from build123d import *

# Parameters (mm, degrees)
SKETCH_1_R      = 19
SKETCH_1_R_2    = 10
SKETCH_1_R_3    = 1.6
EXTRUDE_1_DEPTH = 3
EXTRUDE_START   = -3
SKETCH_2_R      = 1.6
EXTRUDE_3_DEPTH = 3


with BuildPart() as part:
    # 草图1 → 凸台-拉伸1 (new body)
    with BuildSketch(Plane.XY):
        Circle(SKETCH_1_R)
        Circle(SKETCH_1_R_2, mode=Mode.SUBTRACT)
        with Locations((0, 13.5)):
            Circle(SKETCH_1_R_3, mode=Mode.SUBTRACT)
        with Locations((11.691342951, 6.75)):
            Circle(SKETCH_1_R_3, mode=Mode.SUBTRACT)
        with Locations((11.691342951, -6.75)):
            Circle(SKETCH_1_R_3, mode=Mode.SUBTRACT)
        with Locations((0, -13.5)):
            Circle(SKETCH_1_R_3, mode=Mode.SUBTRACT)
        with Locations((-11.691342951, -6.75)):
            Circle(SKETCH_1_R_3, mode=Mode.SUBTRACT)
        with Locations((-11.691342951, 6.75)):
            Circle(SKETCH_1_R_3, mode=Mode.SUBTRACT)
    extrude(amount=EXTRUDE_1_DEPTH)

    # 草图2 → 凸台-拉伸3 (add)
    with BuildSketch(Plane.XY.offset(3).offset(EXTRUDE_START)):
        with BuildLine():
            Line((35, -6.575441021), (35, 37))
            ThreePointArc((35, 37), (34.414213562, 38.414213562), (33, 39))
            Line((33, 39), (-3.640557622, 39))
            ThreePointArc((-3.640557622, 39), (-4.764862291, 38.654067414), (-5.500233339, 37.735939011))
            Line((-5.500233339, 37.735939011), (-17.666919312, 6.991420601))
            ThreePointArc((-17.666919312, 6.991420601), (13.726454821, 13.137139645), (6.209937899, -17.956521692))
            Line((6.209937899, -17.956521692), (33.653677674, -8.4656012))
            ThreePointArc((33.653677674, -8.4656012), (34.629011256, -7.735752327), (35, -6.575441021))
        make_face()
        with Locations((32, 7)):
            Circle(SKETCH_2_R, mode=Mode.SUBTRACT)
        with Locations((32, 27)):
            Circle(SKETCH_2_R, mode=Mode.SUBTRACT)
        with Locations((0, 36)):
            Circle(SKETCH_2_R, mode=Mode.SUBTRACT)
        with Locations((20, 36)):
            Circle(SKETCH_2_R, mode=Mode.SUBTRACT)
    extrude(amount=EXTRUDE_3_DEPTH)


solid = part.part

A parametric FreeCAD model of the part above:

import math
import FreeCAD as App
import Part
import Sketcher

V = App.Vector

doc = App.newDocument("Part")
body = doc.addObject("PartDesign::Body", "Body")

sketch1 = body.newObject("Sketcher::SketchObject", "Sketch")
sketch1.AttachmentSupport = (doc.getObject("XY_Plane"), [""])
sketch1.MapMode = "FlatFace"
sketch1.addGeometry([
    Part.Circle(V(0, 0, 0), V(0, 0, 1), 19),
    Part.Circle(V(-11.7, -6.8, 0), V(0, 0, 1), 1.6),
    Part.Circle(V(0, -13.5, 0), V(0, 0, 1), 1.6),
    Part.Circle(V(11.7, -6.8, 0), V(0, 0, 1), 1.6),
    Part.Circle(V(-11.7, 6.8, 0), V(0, 0, 1), 1.6),
    Part.Circle(V(0, 0, 0), V(0, 0, 1), 10),
    Part.Circle(V(11.7, 6.8, 0), V(0, 0, 1), 1.6),
    Part.Circle(V(0, 13.5, 0), V(0, 0, 1), 1.6),
], False)
sketch1.addConstraint([
    Sketcher.Constraint("Coincident", 0, 3, -1, 1),
    Sketcher.Constraint("Coincident", 5, 3, -1, 1),
    Sketcher.Constraint("Equal", 1, 2),
    Sketcher.Constraint("Equal", 2, 3),
    Sketcher.Constraint("Equal", 3, 4),
    Sketcher.Constraint("Equal", 4, 6),
    Sketcher.Constraint("Equal", 6, 7),
    Sketcher.Constraint("Symmetric", 3, 3, 4, 3, -1, 1),
    Sketcher.Constraint("Symmetric", 1, 3, 6, 3, -1, 1),
    Sketcher.Constraint("Symmetric", 2, 3, 7, 3, -1, 1),
    Sketcher.Constraint("Symmetric", 1, 3, 3, 3, -2),
    Sketcher.Constraint("PointOnObject", 2, 3, -2),
    Sketcher.Constraint("Diameter", 0, 38.0),
    Sketcher.Constraint("Diameter", 5, 20.0),
    Sketcher.Constraint("Diameter", 1, 3.2),
    Sketcher.Constraint("DistanceY", 2, 3, -1, 1, 13.5),
    Sketcher.Constraint("DistanceY", 1, 3, 4, 3, 13.5),
    Sketcher.Constraint("DistanceX", 1, 3, -1, 1, 11.691343),
])
pad1 = body.newObject("PartDesign::Pad", "Pad")
pad1.Profile = sketch1
pad1.Length = 3

sketch2 = body.newObject("Sketcher::SketchObject", "Sketch001")
sketch2.AttachmentSupport = (doc.getObject("XY_Plane"), [""])
sketch2.MapMode = "FlatFace"
sketch2.addGeometry([
    Part.LineSegment(V(35, -6.6, 0), V(35, 37, 0)),
    Part.ArcOfCircle(Part.Circle(V(33, 37, 0), V(0, 0, 1), 2), math.radians(0), math.radians(90)),
    Part.LineSegment(V(33, 39, 0), V(-3.6, 39, 0)),
    Part.ArcOfCircle(Part.Circle(V(-3.6, 37, 0), V(0, 0, 1), 2), math.radians(90), math.radians(158)),
    Part.LineSegment(V(-5.5, 37.7, 0), V(-17.7, 7, 0)),
    Part.ArcOfCircle(Part.Circle(V(0, 0, 0), V(0, 0, 1), 19), math.radians(-71), math.radians(158)),
    Part.LineSegment(V(6.2, -18, 0), V(33.7, -8.5, 0)),
    Part.ArcOfCircle(Part.Circle(V(33, -6.6, 0), V(0, 0, 1), 2), math.radians(-71), math.radians(0)),
    Part.Circle(V(32, 7, 0), V(0, 0, 1), 1.6),
    Part.Circle(V(0, 36, 0), V(0, 0, 1), 1.6),
    Part.Circle(V(32, 27, 0), V(0, 0, 1), 1.6),
    Part.Circle(V(20, 36, 0), V(0, 0, 1), 1.6),
], False)
sketch2.addConstraint([
    Sketcher.Constraint("Tangent", 0, 2, 1, 1),
    Sketcher.Constraint("Tangent", 1, 2, 2, 1),
    Sketcher.Constraint("Tangent", 2, 2, 3, 1),
    Sketcher.Constraint("Tangent", 3, 2, 4, 1),
    Sketcher.Constraint("Tangent", 4, 2, 5, 2),
    Sketcher.Constraint("Tangent", 5, 1, 6, 1),
    Sketcher.Constraint("Tangent", 6, 2, 7, 1),
    Sketcher.Constraint("Tangent", 7, 2, 0, 1),
    Sketcher.Constraint("Vertical", 0),
    Sketcher.Constraint("Horizontal", 2),
    Sketcher.Constraint("Coincident", 5, 3, -1, 1),
    Sketcher.Constraint("Equal", 1, 3),
    Sketcher.Constraint("Equal", 3, 7),
    Sketcher.Constraint("Equal", 8, 9),
    Sketcher.Constraint("Equal", 9, 10),
    Sketcher.Constraint("Equal", 10, 11),
    Sketcher.Constraint("PointOnObject", 9, 3, -2),
    Sketcher.Constraint("Horizontal", 9, 3, 11, 3),
    Sketcher.Constraint("Vertical", 8, 3, 10, 3),
    Sketcher.Constraint("Radius", 1, 2.0),
    Sketcher.Constraint("Radius", 5, 19.0),
    Sketcher.Constraint("Diameter", 8, 3.2),
    Sketcher.Constraint("DistanceX", -1, 1, 1, 3, 33.0),
    Sketcher.Constraint("DistanceY", -1, 1, 1, 3, 37.0),
    Sketcher.Constraint("DistanceX", -1, 1, 8, 3, 32.0),
    Sketcher.Constraint("DistanceY", -1, 1, 8, 3, 7.0),
    Sketcher.Constraint("DistanceY", -1, 1, 9, 3, 36.0),
    Sketcher.Constraint("DistanceY", -1, 1, 10, 3, 27.0),
    Sketcher.Constraint("DistanceX", -1, 1, 11, 3, 20.0),
    Sketcher.Constraint("DistanceY", 0, 1, 0, 2, 43.575441),
    Sketcher.Constraint("DistanceX", 2, 2, 2, 1, 36.640558),
])
pad2 = body.newObject("PartDesign::Pad", "Pad001")
pad2.Profile = sketch2
pad2.Length = 3

doc.recompute()
